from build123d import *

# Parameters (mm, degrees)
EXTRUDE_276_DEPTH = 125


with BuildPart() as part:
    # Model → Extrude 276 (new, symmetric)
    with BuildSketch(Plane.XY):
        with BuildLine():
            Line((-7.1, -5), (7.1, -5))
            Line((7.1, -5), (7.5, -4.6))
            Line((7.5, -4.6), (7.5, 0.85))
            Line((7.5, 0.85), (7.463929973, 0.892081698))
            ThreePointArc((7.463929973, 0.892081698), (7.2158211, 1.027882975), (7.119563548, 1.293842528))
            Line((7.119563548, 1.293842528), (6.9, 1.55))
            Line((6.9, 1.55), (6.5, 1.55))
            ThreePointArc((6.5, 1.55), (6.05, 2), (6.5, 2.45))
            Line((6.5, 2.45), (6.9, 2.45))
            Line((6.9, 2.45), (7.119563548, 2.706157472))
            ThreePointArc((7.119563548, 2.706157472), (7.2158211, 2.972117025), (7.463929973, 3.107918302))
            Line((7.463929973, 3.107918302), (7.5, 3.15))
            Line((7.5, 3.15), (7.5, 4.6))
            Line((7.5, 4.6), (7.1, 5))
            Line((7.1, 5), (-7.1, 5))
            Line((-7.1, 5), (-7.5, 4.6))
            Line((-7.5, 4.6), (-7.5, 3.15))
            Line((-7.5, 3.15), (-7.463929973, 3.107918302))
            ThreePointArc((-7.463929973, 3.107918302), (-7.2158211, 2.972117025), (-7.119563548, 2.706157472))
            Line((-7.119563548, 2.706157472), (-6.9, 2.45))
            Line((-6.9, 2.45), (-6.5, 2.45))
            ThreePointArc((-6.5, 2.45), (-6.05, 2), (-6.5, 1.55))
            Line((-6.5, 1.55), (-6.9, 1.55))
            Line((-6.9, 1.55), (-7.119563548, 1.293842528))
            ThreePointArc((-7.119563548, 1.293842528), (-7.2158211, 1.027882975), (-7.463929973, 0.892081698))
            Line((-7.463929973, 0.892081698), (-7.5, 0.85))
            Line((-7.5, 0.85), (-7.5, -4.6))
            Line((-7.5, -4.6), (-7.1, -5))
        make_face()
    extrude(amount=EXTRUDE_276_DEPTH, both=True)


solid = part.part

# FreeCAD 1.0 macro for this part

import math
import FreeCAD as App
import Part
import Sketcher
Q = App.Units.Quantity

doc = App.newDocument("Part")
params = doc.addObject("Spreadsheet::Sheet", "Params")
for row, (alias, value) in enumerate([
    ("sketch1_radius", "0.4 mm"),
    ("sketch1_radius2", "0.45 mm"),
    ("sketch1_width", "14.2 mm"),
    ("sketch1_width2", "0.4 mm"),
    ("sketch1_height", "5.45 mm"),
    ("pad1_length", "250 mm"),
], start=1):
    params.set(f"A{row}", alias)
    params.set(f"B{row}", "=" + value)
    params.setAlias(f"B{row}", alias)

body = doc.addObject("PartDesign::Body", "Body")

# Sketch on XY plane
sketch1 = body.newObject("Sketcher::SketchObject", "Sketch")
sketch1.AttachmentSupport = (doc.getObject("XY_Plane"), [""])
sketch1.MapMode = "FlatFace"
sketch1.addGeometry([
    Part.LineSegment(App.Vector(-7.1, -5, 0), App.Vector(7.1, -5, 0)),  # 0
    Part.LineSegment(App.Vector(7.1, -5, 0), App.Vector(7.5, -4.6, 0)),  # 1
    Part.LineSegment(App.Vector(7.5, -4.6, 0), App.Vector(7.5, 0.85, 0)),  # 2
    Part.LineSegment(App.Vector(7.5, 0.85, 0), App.Vector(7.46, 0.89, 0)),  # 3
    Part.ArcOfCircle(Part.Circle(App.Vector(7.52, 1.29, 0), App.Vector(0, 0, 1), 0.4), math.radians(179), math.radians(262)),  # 4
    Part.LineSegment(App.Vector(7.12, 1.29, 0), App.Vector(6.9, 1.55, 0)),  # 5
    Part.LineSegment(App.Vector(6.9, 1.55, 0), App.Vector(6.5, 1.55, 0)),  # 6
    Part.ArcOfCircle(Part.Circle(App.Vector(6.5, 2, 0), App.Vector(0, 0, 1), 0.45), math.radians(90), math.radians(270)),  # 7
    Part.LineSegment(App.Vector(6.5, 2.45, 0), App.Vector(6.9, 2.45, 0)),  # 8
    Part.LineSegment(App.Vector(6.9, 2.45, 0), App.Vector(7.12, 2.71, 0)),  # 9
    Part.ArcOfCircle(Part.Circle(App.Vector(7.52, 2.71, 0), App.Vector(0, 0, 1), 0.4), math.radians(98), math.radians(181)),  # 10
    Part.LineSegment(App.Vector(7.46, 3.11, 0), App.Vector(7.5, 3.15, 0)),  # 11
    Part.LineSegment(App.Vector(7.5, 3.15, 0), App.Vector(7.5, 4.6, 0)),  # 12
    Part.LineSegment(App.Vector(7.5, 4.6, 0), App.Vector(7.1, 5, 0)),  # 13
    Part.LineSegment(App.Vector(7.1, 5, 0), App.Vector(-7.1, 5, 0)),  # 14
    Part.LineSegment(App.Vector(-7.1, 5, 0), App.Vector(-7.5, 4.6, 0)),  # 15
    Part.LineSegment(App.Vector(-7.5, 4.6, 0), App.Vector(-7.5, 3.15, 0)),  # 16
    Part.LineSegment(App.Vector(-7.5, 3.15, 0), App.Vector(-7.46, 3.11, 0)),  # 17
    Part.ArcOfCircle(Part.Circle(App.Vector(-7.52, 2.71, 0), App.Vector(0, 0, 1), 0.4), math.radians(-1), math.radians(82)),  # 18
    Part.LineSegment(App.Vector(-7.12, 2.71, 0), App.Vector(-6.9, 2.45, 0)),  # 19
    Part.LineSegment(App.Vector(-6.9, 2.45, 0), App.Vector(-6.5, 2.45, 0)),  # 20
    Part.ArcOfCircle(Part.Circle(App.Vector(-6.5, 2, 0), App.Vector(0, 0, 1), 0.45), math.radians(-90), math.radians(90)),  # 21
    Part.LineSegment(App.Vector(-6.5, 1.55, 0), App.Vector(-6.9, 1.55, 0)),  # 22
    Part.LineSegment(App.Vector(-6.9, 1.55, 0), App.Vector(-7.12, 1.29, 0)),  # 23
    Part.ArcOfCircle(Part.Circle(App.Vector(-7.52, 1.29, 0), App.Vector(0, 0, 1), 0.4), math.radians(-82), math.radians(1)),  # 24
    Part.LineSegment(App.Vector(-7.46, 0.89, 0), App.Vector(-7.5, 0.85, 0)),  # 25
    Part.LineSegment(App.Vector(-7.5, 0.85, 0), App.Vector(-7.5, -4.6, 0)),  # 26
    Part.LineSegment(App.Vector(-7.5, -4.6, 0), App.Vector(-7.1, -5, 0)),  # 27
], False)
sketch1.addConstraint([
    Sketcher.Constraint("Coincident", 0, 2, 1, 1),
    Sketcher.Constraint("Coincident", 1, 2, 2, 1),
    Sketcher.Constraint("Coincident", 2, 2, 3, 1),
    Sketcher.Constraint("Coincident", 3, 2, 4, 2),
    Sketcher.Constraint("Coincident", 4, 1, 5, 1),
    Sketcher.Constraint("Coincident", 5, 2, 6, 1),
    Sketcher.Constraint("Tangent", 6, 2, 7, 2),
    Sketcher.Constraint("Tangent", 7, 1, 8, 1),
    Sketcher.Constraint("Coincident", 8, 2, 9, 1),
    Sketcher.Constraint("Coincident", 9, 2, 10, 2),
    Sketcher.Constraint("Coincident", 10, 1, 11, 1),
    Sketcher.Constraint("Coincident", 11, 2, 12, 1),
    Sketcher.Constraint("Coincident", 12, 2, 13, 1),
    Sketcher.Constraint("Coincident", 13, 2, 14, 1),
    Sketcher.Constraint("Coincident", 14, 2, 15, 1),
    Sketcher.Constraint("Coincident", 15, 2, 16, 1),
    Sketcher.Constraint("Coincident", 16, 2, 17, 1),
    Sketcher.Constraint("Coincident", 17, 2, 18, 2),
    Sketcher.Constraint("Coincident", 18, 1, 19, 1),
    Sketcher.Constraint("Coincident", 19, 2, 20, 1),
    Sketcher.Constraint("Tangent", 20, 2, 21, 2),
    Sketcher.Constraint("Tangent", 21, 1, 22, 1),
    Sketcher.Constraint("Coincident", 22, 2, 23, 1),
    Sketcher.Constraint("Coincident", 23, 2, 24, 2),
    Sketcher.Constraint("Coincident", 24, 1, 25, 1),
    Sketcher.Constraint("Coincident", 25, 2, 26, 1),
    Sketcher.Constraint("Coincident", 26, 2, 27, 1),
    Sketcher.Constraint("Coincident", 27, 2, 0, 1),
    Sketcher.Constraint("Horizontal", 0),
    Sketcher.Constraint("Vertical", 2),
    Sketcher.Constraint("Horizontal", 6),
    Sketcher.Constraint("Horizontal", 8),
    Sketcher.Constraint("Vertical", 12),
    Sketcher.Constraint("Horizontal", 14),
    Sketcher.Constraint("Vertical", 16),
    Sketcher.Constraint("Horizontal", 20),
    Sketcher.Constraint("Horizontal", 22),
    Sketcher.Constraint("Vertical", 26),
    Sketcher.Constraint("Equal", 4, 10),
    Sketcher.Constraint("Equal", 10, 18),
    Sketcher.Constraint("Equal", 7, 21),
    Sketcher.Constraint("Equal", 18, 24),
    Sketcher.Constraint("Symmetric", 0, 2, 14, 2, -1, 1),
    Sketcher.Constraint("Symmetric", 1, 2, 15, 2, -1, 1),
    Sketcher.Constraint("Symmetric", 12, 2, 26, 2, -1, 1),
    Sketcher.Constraint("Symmetric", 10, 3, 18, 3, -2),
    Sketcher.Constraint("Symmetric", 7, 3, 21, 3, -2),
    Sketcher.Constraint("Symmetric", 4, 3, 24, 3, -2),
    Sketcher.Constraint("Symmetric", 12, 2, 15, 2, -2),
    Sketcher.Constraint("Parallel", 3, 5),
    Sketcher.Constraint("Parallel", 9, 11),
    Sketcher.Constraint("Perpendicular", 1, 13),
    Sketcher.Constraint("Parallel", 5, 17),
    Sketcher.Constraint("Parallel", 17, 19),
    Sketcher.Constraint("Parallel", 11, 23),
    Sketcher.Constraint("Parallel", 23, 25),
    Sketcher.Constraint("Perpendicular", 15, 27),
    Sketcher.Constraint("Horizontal", 11, 2, 16, 2),
    Sketcher.Constraint("Horizontal", 10, 1, 17, 2),
    Sketcher.Constraint("Horizontal", 9, 2, 18, 1),
    Sketcher.Constraint("Horizontal", 4, 1, 23, 2),
    Sketcher.Constraint("Horizontal", 3, 2, 24, 1),
    Sketcher.Constraint("Vertical", 4, 3, 10, 3),
    Sketcher.Constraint("Vertical", 5, 2, 8, 2),
    Sketcher.Constraint("Vertical", 4, 1, 9, 2),
    Sketcher.Constraint("Vertical", 3, 2, 10, 1),
    Sketcher.Constraint("Vertical", 0, 2, 13, 2),
    Sketcher.Constraint("Radius", 4, Q("0.4 mm")),
    Sketcher.Constraint("Radius", 7, Q("0.45 mm")),
    Sketcher.Constraint("DistanceX", 0, 1, 0, 2, Q("14.2 mm")),
    Sketcher.Constraint("DistanceX", 6, 2, 6, 1, Q("0.4 mm")),
    Sketcher.Constraint("DistanceY", -1, 1, 7, 3, Q("2 mm")),
    Sketcher.Constraint("DistanceY", 0, 2, -1, 1, Q("5 mm")),
    Sketcher.Constraint("DistanceX", 21, 3, 7, 3, Q("13 mm")),
    Sketcher.Constraint("DistanceX", 7, 3, 1, 2, Q("1 mm")),
    Sketcher.Constraint("DistanceY", 2, 1, 2, 2, Q("5.45 mm")),
    Sketcher.Constraint("DistanceY", -1, 1, 4, 3, Q("1.2882 mm")),
    Sketcher.Constraint("Distance", 5, Q("0.337379 mm")),
    Sketcher.Constraint("DistanceX", -1, 1, 3, 2, Q("7.46393 mm")),
])
sketch1.setExpression("Constraints[67]", "Params.sketch1_radius")
sketch1.setExpression("Constraints[68]", "Params.sketch1_radius2")
sketch1.setExpression("Constraints[69]", "Params.sketch1_width")
sketch1.setExpression("Constraints[70]", "Params.sketch1_width2")
sketch1.setExpression("Constraints[75]", "Params.sketch1_height")
pad1 = body.newObject("PartDesign::Pad", "Pad")
pad1.Profile = sketch1
pad1.setExpression("Length", "Params.pad1_length")
pad1.Midplane = True

doc.recompute()
